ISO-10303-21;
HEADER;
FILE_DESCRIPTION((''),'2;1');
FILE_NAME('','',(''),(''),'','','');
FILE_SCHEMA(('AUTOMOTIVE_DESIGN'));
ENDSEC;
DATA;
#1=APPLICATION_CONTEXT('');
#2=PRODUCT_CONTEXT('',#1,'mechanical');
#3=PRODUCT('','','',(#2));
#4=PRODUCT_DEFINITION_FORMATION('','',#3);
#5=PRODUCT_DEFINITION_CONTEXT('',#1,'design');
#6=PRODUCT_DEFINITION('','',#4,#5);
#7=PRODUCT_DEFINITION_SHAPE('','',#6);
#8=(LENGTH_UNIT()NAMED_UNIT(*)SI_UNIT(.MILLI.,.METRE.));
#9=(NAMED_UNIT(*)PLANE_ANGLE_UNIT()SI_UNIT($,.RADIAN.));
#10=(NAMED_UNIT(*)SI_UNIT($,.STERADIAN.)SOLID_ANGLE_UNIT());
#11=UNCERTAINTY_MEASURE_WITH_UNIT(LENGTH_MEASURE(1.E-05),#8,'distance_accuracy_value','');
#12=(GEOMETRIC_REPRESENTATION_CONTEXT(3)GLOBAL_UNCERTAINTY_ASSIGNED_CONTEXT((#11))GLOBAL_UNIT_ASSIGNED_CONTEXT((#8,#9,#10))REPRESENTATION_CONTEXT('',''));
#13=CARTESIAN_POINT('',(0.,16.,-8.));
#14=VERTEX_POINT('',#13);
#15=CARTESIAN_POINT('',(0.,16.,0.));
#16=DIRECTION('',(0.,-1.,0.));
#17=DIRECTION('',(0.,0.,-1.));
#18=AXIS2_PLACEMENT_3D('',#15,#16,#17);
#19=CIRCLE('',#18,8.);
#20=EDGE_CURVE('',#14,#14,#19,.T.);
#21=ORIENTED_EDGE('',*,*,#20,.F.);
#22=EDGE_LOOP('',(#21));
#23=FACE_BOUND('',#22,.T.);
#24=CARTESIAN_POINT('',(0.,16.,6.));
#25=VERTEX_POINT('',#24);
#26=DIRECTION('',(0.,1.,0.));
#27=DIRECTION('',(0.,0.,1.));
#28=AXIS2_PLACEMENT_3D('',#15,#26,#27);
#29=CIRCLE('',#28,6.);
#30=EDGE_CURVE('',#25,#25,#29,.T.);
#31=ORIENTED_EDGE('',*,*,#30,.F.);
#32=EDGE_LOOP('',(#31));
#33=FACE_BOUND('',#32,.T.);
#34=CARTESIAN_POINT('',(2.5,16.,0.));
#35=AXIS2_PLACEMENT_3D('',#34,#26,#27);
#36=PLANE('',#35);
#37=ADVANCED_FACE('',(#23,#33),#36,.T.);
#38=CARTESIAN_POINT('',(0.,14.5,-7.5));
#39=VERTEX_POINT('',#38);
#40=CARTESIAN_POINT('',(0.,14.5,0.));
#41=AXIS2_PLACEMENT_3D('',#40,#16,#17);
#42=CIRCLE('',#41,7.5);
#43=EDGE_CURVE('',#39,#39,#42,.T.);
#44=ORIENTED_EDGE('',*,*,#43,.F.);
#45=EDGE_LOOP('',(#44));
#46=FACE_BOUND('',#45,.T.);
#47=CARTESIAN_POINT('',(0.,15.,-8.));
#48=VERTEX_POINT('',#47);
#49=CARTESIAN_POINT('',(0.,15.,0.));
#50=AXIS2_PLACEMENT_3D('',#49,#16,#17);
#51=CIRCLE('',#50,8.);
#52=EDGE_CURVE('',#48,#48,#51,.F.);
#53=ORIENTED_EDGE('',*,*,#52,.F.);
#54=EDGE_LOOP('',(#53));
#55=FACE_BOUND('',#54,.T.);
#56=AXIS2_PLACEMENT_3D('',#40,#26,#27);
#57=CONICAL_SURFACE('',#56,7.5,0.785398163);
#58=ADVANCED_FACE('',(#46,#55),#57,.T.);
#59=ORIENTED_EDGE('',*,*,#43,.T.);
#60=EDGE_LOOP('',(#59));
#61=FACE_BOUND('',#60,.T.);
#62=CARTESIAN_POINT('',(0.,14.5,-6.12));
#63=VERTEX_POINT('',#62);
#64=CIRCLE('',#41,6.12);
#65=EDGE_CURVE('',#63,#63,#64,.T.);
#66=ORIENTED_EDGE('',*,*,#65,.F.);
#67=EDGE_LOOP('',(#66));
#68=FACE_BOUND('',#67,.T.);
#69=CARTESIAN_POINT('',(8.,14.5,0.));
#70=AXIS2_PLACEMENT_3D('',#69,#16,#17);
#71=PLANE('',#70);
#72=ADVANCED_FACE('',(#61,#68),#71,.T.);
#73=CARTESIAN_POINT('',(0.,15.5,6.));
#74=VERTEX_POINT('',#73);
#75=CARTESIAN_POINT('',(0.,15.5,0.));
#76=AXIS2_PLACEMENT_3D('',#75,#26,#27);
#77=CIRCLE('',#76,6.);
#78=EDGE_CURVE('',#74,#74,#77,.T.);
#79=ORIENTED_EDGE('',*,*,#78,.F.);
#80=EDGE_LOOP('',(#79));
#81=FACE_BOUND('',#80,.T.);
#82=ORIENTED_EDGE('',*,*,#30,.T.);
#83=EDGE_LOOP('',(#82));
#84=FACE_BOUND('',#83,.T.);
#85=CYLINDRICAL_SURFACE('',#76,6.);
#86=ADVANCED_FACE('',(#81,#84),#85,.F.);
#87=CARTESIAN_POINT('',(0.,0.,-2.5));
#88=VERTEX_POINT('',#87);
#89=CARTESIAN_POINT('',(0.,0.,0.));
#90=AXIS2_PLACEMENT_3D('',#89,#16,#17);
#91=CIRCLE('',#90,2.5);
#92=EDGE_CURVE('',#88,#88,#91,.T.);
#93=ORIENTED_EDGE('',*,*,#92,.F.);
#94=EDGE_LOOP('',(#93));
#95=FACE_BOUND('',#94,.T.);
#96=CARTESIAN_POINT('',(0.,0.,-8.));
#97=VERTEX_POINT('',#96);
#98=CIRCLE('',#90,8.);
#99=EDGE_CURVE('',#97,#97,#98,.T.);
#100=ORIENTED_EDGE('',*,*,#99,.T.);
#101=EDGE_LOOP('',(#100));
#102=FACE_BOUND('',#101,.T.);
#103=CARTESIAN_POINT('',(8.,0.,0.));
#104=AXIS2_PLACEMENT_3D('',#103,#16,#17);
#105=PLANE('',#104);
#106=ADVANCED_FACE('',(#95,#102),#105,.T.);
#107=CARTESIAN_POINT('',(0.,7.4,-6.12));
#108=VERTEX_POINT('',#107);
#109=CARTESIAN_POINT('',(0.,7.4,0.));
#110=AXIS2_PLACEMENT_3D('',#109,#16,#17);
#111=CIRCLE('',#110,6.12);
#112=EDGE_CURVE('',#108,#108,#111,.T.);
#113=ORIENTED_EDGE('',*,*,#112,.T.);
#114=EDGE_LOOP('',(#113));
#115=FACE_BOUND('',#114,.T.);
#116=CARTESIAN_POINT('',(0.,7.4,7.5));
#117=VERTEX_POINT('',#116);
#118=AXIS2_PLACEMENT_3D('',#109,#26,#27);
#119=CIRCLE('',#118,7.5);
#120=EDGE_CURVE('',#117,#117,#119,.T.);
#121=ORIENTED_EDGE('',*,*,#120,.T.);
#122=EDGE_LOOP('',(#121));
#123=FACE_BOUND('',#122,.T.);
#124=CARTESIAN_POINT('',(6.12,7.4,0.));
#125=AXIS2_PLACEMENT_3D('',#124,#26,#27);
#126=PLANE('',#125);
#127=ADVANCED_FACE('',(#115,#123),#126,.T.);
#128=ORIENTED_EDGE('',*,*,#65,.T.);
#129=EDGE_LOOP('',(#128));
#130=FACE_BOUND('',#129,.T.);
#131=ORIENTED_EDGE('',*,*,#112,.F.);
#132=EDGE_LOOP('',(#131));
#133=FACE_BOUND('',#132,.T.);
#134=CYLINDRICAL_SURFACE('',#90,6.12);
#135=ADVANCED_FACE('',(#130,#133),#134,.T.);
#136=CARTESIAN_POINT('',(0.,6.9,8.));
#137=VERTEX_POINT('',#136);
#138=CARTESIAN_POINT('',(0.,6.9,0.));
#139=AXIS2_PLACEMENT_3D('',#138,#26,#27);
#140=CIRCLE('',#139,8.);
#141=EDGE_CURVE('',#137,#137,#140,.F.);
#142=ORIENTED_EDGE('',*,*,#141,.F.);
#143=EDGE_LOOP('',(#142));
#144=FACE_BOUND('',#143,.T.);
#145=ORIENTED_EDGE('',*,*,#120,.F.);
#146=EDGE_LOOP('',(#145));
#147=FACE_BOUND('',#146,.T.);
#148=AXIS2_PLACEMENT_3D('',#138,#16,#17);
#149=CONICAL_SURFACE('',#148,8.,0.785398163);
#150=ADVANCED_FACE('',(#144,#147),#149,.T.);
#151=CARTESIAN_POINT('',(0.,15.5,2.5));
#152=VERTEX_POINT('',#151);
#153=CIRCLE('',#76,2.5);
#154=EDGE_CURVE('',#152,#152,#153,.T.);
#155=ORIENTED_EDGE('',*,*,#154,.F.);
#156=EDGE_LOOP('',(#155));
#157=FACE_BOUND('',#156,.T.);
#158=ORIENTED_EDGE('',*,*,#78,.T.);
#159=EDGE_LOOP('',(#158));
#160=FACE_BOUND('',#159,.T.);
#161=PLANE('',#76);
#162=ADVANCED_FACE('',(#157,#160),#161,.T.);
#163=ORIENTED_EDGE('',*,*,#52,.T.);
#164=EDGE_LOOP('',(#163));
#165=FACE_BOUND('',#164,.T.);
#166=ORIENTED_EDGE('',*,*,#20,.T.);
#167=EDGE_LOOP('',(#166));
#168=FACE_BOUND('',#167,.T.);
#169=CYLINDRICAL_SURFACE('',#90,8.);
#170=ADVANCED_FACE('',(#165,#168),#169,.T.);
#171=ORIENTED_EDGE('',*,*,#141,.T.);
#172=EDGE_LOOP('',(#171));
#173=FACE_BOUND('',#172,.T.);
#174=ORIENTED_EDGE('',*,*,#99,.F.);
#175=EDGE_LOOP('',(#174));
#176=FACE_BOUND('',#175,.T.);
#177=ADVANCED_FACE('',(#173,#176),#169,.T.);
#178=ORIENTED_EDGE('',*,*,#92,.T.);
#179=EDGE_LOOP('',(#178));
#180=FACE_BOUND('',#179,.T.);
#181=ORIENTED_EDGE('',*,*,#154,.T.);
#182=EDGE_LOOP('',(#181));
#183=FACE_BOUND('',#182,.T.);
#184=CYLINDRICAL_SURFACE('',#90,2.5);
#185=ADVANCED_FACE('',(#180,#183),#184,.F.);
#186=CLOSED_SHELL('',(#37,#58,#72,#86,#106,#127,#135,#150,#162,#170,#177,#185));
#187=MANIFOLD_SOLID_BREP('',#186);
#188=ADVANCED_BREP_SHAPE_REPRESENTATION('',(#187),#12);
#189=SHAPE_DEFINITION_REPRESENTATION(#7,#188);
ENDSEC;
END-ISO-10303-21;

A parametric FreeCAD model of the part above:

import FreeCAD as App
import Part
import Sketcher
from FreeCAD import Vector
Q = App.Units.Quantity


def edges_at(feature, points):
    """Names of the edges that pass closest to the given points."""
    edges = feature.Shape.Edges
    near = lambda p: min(range(len(edges)), key=lambda i: edges[i].distToShape(Part.Vertex(*p))[0])
    return sorted({f"Edge{near(p) + 1}" for p in points})


def add_polygon(sketch, points):
    """Adds a closed chain of lines whose ends are joined by coincident constraints."""
    first, n = sketch.GeometryCount, len(points)
    for a, b in zip(points, points[1:] + points[:1]):
        sketch.addGeometry(Part.LineSegment(App.Vector(*a, 0), App.Vector(*b, 0)), False)
    for i in range(n):
        sketch.addConstraint(Sketcher.Constraint("Coincident", first + i, 2, first + (i + 1) % n, 1))

doc = App.newDocument("Part")
body = doc.addObject("PartDesign::Body", "Body")

# Sketch on XY plane
sketch1 = body.newObject("Sketcher::SketchObject", "Sketch")
sketch1.AttachmentSupport = (doc.getObject("XY_Plane"), [""])
sketch1.MapMode = "FlatFace"
add_polygon(sketch1, [(2.5, 16), (2.5, 0), (8, 0), (8, 7.4), (6.12, 7.4), (6.12, 14.5), (8, 14.5), (8, 16)])  # lines 0-7
sketch1.addConstraint([
    Sketcher.Constraint("Vertical", 0),
    Sketcher.Constraint("Horizontal", 1),
    Sketcher.Constraint("Vertical", 2),
    Sketcher.Constraint("Horizontal", 3),
    Sketcher.Constraint("Vertical", 4),
    Sketcher.Constraint("Horizontal", 5),
    Sketcher.Constraint("Vertical", 6),
    Sketcher.Constraint("Horizontal", 7),
    Sketcher.Constraint("PointOnObject", 0, 2, -1),
    Sketcher.Constraint("Vertical", 2, 2, 5, 2),
    Sketcher.Constraint("DistanceY", 0, 2, 0, 1, Q("16 mm")),
    Sketcher.Constraint("DistanceX", 1, 1, 1, 2, Q("5.5 mm")),
    Sketcher.Constraint("DistanceY", 2, 1, 2, 2, Q("7.4 mm")),
    Sketcher.Constraint("DistanceY", 4, 1, 4, 2, Q("7.1 mm")),
    Sketcher.Constraint("DistanceX", -1, 1, 1, 2, Q("8 mm")),
    Sketcher.Constraint("DistanceX", 3, 2, 3, 1, Q("1.88 mm")),
])
revolution = body.newObject("PartDesign::Revolution", "Revolution")
revolution.Profile = sketch1
revolution.ReferenceAxis = (sketch1, ["V_Axis"])
revolution.Angle = 360
doc.recompute()

chamfer = body.newObject("PartDesign::Chamfer", "Chamfer")
chamfer.Base = (revolution, edges_at(revolution, [(-8, 7.4, 0), (-8, 14.5, 0)]))
chamfer.Size = 0.5

# Sketch on XZ plane
sketch2 = body.newObject("Sketcher::SketchObject", "Sketch001")
sketch2.AttachmentSupport = (doc.getObject("XZ_Plane"), [""])
sketch2.MapMode = "FlatFace"
sketch2.AttachmentOffset = App.Placement(Vector(0, 0, -16), App.Rotation())
sketch2.addGeometry(Part.Circle(Vector(0, 0, 0), Vector(0, 0, 1), 6), False)
sketch2.addConstraint([
    Sketcher.Constraint("Coincident", 0, 3, -1, 1),
    Sketcher.Constraint("Diameter", 0, Q("12 mm")),
])
pocket1 = body.newObject("PartDesign::Pocket", "Pocket")
pocket1.Profile = sketch2
pocket1.Length = 0.5
pocket1.Reversed = True

doc.recompute()
